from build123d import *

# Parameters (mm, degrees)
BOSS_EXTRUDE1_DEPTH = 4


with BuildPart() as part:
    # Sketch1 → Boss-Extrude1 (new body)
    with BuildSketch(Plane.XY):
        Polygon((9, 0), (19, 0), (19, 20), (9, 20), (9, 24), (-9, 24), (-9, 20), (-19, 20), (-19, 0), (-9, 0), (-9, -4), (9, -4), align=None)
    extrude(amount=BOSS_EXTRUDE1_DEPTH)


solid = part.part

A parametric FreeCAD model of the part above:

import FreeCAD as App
import Part
import Sketcher

V = App.Vector


def add_polygon(sketch, points):
    """Adds a closed chain of lines whose ends are joined by coincident constraints."""
    first, n = sketch.GeometryCount, len(points)
    for a, b in zip(points, points[1:] + points[:1]):
        sketch.addGeometry(Part.LineSegment(App.Vector(*a, 0), App.Vector(*b, 0)), False)
    for i in range(n):
        sketch.addConstraint(Sketcher.Constraint("Coincident", first + i, 2, first + (i + 1) % n, 1))

doc = App.newDocument("Part")
body = doc.addObject("PartDesign::Body", "Body")

# Sketch on XY plane
sketch1 = body.newObject("Sketcher::SketchObject", "Sketch")
sketch1.AttachmentSupport = (doc.getObject("XY_Plane"), [""])
sketch1.MapMode = "FlatFace"
add_polygon(sketch1, [(9, 0), (19, 0), (19, 20), (9, 20), (9, 24), (-9, 24), (-9, 20), (-19, 20), (-19, 0), (-9, 0), (-9, -4), (9, -4)])  # lines 0-11
sketch1.addConstraint(Sketcher.Constraint("Horizontal", 0))
sketch1.addConstraint(Sketcher.Constraint("Vertical", 1))
sketch1.addConstraint(Sketcher.Constraint("Horizontal", 2))
sketch1.addConstraint(Sketcher.Constraint("Vertical", 3))
sketch1.addConstraint(Sketcher.Constraint("Horizontal", 4))
sketch1.addConstraint(Sketcher.Constraint("Vertical", 5))
sketch1.addConstraint(Sketcher.Constraint("Horizontal", 6))
sketch1.addConstraint(Sketcher.Constraint("Vertical", 7))
sketch1.addConstraint(Sketcher.Constraint("Horizontal", 8))
sketch1.addConstraint(Sketcher.Constraint("Vertical", 9))
sketch1.addConstraint(Sketcher.Constraint("Horizontal", 10))
sketch1.addConstraint(Sketcher.Constraint("Vertical", 11))
sketch1.addConstraint(Sketcher.Constraint("Symmetric", 0, 2, 7, 2, -1, 1))
sketch1.addConstraint(Sketcher.Constraint("Symmetric", 2, 2, 5, 2, -2))
sketch1.addConstraint(Sketcher.Constraint("Symmetric", 8, 2, 11, 2, -2))
sketch1.addConstraint(Sketcher.Constraint("Vertical", 5, 2, 8, 2))
sketch1.addConstraint(Sketcher.Constraint("Equal", 5, 9))
sketch1.addConstraint(Sketcher.Constraint("DistanceX", 0, 1, 0, 2, 10.0))
sketch1.addConstraint(Sketcher.Constraint("DistanceX", 4, 2, 4, 1, 18.0))
sketch1.addConstraint(Sketcher.Constraint("DistanceY", 1, 1, 1, 2, 20.0))
sketch1.addConstraint(Sketcher.Constraint("DistanceY", 3, 1, 3, 2, 4.0))
pad1 = body.newObject("PartDesign::Pad", "Pad")
pad1.Profile = sketch1
pad1.Length = 4

doc.recompute()
